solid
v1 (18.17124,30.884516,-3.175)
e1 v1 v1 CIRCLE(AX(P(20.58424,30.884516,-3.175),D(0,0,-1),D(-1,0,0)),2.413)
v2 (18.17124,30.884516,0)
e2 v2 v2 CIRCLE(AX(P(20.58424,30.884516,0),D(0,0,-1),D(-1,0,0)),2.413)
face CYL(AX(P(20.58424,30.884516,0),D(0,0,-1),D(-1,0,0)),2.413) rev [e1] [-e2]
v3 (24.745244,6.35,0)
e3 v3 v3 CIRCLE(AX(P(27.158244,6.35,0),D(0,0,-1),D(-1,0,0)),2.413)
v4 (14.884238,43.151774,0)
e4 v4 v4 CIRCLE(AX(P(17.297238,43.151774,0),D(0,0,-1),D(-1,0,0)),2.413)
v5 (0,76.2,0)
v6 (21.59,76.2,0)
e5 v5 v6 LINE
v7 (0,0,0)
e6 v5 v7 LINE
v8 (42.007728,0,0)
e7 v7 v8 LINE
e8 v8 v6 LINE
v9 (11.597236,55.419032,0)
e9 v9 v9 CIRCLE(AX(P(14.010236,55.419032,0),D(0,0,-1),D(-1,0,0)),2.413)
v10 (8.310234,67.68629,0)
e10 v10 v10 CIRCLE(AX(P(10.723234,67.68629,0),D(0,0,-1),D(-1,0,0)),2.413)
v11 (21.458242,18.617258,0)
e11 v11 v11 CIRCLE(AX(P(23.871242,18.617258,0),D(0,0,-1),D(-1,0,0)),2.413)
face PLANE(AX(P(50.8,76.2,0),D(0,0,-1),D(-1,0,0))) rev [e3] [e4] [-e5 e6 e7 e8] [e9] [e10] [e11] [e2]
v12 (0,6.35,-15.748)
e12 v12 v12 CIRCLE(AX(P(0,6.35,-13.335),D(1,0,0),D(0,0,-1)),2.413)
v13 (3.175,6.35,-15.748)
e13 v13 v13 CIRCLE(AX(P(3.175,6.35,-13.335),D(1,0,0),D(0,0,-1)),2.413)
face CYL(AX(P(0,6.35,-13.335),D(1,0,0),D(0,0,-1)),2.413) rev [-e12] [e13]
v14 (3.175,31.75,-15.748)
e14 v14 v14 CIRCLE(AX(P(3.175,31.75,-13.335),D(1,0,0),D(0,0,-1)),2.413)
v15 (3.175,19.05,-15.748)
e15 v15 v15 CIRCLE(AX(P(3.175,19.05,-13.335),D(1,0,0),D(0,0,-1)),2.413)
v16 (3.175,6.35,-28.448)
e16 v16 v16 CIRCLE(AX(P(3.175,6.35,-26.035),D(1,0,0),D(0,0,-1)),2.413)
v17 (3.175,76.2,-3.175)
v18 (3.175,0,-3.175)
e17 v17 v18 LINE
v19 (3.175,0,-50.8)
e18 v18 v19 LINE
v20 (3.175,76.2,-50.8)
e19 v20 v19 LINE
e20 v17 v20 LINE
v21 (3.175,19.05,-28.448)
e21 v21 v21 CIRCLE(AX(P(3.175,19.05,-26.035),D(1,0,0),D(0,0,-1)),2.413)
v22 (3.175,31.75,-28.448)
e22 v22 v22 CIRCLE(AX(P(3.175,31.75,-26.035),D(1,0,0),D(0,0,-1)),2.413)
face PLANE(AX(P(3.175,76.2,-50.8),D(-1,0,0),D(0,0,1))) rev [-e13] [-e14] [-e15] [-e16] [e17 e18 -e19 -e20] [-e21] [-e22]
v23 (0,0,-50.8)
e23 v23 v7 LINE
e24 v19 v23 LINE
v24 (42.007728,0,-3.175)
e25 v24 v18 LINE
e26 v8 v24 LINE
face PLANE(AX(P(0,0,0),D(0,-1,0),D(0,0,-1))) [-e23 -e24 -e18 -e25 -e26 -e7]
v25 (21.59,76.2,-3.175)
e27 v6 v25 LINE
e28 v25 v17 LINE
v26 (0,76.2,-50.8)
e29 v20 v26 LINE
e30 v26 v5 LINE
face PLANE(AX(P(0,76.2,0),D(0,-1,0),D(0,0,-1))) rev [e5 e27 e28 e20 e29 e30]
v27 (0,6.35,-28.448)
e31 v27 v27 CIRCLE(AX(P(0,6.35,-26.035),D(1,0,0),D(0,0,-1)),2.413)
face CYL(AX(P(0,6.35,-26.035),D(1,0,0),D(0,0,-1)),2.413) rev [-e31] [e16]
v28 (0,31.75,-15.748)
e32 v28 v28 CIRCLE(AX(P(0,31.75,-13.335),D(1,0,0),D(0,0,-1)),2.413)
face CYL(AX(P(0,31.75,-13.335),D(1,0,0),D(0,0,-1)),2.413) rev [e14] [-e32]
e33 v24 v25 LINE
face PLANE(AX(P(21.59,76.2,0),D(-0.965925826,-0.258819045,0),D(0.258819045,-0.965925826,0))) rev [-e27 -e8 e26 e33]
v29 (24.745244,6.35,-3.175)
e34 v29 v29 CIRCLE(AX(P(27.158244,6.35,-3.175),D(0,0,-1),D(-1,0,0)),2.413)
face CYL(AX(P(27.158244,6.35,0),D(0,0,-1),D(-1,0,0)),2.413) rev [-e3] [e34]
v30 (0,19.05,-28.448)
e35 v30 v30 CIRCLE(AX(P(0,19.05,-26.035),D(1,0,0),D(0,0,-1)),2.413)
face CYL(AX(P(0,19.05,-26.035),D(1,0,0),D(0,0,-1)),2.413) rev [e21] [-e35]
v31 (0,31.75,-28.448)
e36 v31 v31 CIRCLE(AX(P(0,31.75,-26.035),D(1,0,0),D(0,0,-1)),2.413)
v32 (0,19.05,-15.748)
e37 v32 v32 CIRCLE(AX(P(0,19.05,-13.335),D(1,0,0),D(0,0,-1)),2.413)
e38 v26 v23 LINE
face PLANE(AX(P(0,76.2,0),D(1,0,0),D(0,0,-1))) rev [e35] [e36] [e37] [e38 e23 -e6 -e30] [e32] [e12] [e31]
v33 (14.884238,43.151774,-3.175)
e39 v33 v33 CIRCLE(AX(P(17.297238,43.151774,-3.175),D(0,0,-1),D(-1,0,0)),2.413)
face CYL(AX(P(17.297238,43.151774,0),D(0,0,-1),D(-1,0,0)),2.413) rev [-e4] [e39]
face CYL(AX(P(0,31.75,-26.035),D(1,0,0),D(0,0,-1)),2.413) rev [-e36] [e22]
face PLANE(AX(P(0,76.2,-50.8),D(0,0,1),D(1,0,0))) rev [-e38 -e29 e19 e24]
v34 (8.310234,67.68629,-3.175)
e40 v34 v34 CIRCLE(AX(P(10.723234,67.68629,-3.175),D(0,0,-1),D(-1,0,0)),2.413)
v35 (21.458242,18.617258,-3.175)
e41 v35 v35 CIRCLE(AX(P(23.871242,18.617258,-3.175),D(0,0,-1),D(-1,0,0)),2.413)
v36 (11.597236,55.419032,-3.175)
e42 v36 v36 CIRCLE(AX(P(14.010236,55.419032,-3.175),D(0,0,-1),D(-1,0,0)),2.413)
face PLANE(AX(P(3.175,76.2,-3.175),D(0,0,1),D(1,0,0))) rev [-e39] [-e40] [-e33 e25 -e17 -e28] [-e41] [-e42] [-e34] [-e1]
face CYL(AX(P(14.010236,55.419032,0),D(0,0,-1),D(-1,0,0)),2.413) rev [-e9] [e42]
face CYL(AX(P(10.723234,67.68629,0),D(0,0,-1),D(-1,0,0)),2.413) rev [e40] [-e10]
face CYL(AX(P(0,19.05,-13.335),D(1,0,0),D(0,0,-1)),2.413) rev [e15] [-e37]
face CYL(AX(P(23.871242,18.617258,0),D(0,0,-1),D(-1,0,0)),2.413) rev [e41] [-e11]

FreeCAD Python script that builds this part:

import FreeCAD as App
import Part
import Sketcher
Q = App.Units.Quantity


def add_polygon(sketch, points):
    """Adds a closed chain of lines whose ends are joined by coincident constraints."""
    first, n = sketch.GeometryCount, len(points)
    for a, b in zip(points, points[1:] + points[:1]):
        sketch.addGeometry(Part.LineSegment(App.Vector(*a, 0), App.Vector(*b, 0)), False)
    for i in range(n):
        sketch.addConstraint(Sketcher.Constraint("Coincident", first + i, 2, first + (i + 1) % n, 1))

doc = App.newDocument("Part")
body = doc.addObject("PartDesign::Body", "Body")

sketch1 = body.newObject("Sketcher::SketchObject", "Sketch")
sketch1.AttachmentSupport = (doc.getObject("XZ_Plane"), [""])
sketch1.MapMode = "FlatFace"
add_polygon(sketch1, [(0, -50.8), (0, 0), (50.8, 0), (50.8, -3.175), (3.175, -3.175), (3.175, -50.8)])
sketch1.addConstraint(Sketcher.Constraint("Vertical", 0))
sketch1.addConstraint(Sketcher.Constraint("Horizontal", 1))
sketch1.addConstraint(Sketcher.Constraint("Vertical", 2))
sketch1.addConstraint(Sketcher.Constraint("Horizontal", 3))
sketch1.addConstraint(Sketcher.Constraint("Vertical", 4))
sketch1.addConstraint(Sketcher.Constraint("Horizontal", 5))
sketch1.addConstraint(Sketcher.Constraint("Coincident", 0, 2, -1, 1))
sketch1.addConstraint(Sketcher.Constraint("Equal", 1, 0))
sketch1.addConstraint(Sketcher.Constraint("Equal", 5, 2))
sketch1.addConstraint(Sketcher.Constraint("DistanceX", 1, 1, 1, 2, Q("2 in")))
sketch1.addConstraint(Sketcher.Constraint("DistanceX", 3, 2, 3, 1, Q("1.875 in")))
pad1 = body.newObject("PartDesign::Pad", "Pad")
pad1.Profile = sketch1
pad1.Length = Q("3 in")
pad1.Reversed = True

sketch2 = body.newObject("Sketcher::SketchObject", "Sketch001")
sketch2.AttachmentSupport = (doc.getObject("XY_Plane"), [""])
sketch2.MapMode = "FlatFace"
sketch2.AttachmentOffset = App.Placement(App.Vector(0, 0, -0.125 * 25.4), App.Rotation())
sketch2.addGeometry(Part.Circle(App.Vector(27.158244, 6.35, 0), App.Vector(0, 0, 1), 2.413), False)
sketch2.addGeometry(Part.Circle(App.Vector(23.871242, 18.617258, 0), App.Vector(0, 0, 1), 2.413), False)
sketch2.addGeometry(Part.Circle(App.Vector(20.58424, 30.884516, 0), App.Vector(0, 0, 1), 2.413), False)
sketch2.addGeometry(Part.Circle(App.Vector(17.297238, 43.151774, 0), App.Vector(0, 0, 1), 2.413), False)
sketch2.addGeometry(Part.Circle(App.Vector(14.010236, 55.419032, 0), App.Vector(0, 0, 1), 2.413), False)
sketch2.addGeometry(Part.Circle(App.Vector(10.723234, 67.68629, 0), App.Vector(0, 0, 1), 2.413), False)
add_polygon(sketch2, [(50.8, -32.813204), (21.59, 76.2), (50.8, 76.2)])
sketch2.addConstraint(Sketcher.Constraint("Horizontal", 7))
sketch2.addConstraint(Sketcher.Constraint("Vertical", 8))
sketch2.addConstraint(Sketcher.Constraint("Equal", 0, 1))
sketch2.addConstraint(Sketcher.Constraint("Equal", 1, 2))
sketch2.addConstraint(Sketcher.Constraint("Equal", 2, 3))
sketch2.addConstraint(Sketcher.Constraint("Equal", 3, 4))
sketch2.addConstraint(Sketcher.Constraint("Equal", 4, 5))
sketch2.addConstraint(Sketcher.Constraint("Diameter", 0, Q("0.19 in")))
sketch2.addConstraint(Sketcher.Constraint("DistanceY", -1, 1, 6, 2, Q("3 in")))
sketch2.addConstraint(Sketcher.Constraint("DistanceX", -1, 1, 7, 2, Q("2 in")))
sketch2.addConstraint(Sketcher.Constraint("Angle", 6, Q("105 deg")))
sketch2.addConstraint(Sketcher.Constraint("DistanceX", 7, 1, 7, 2, Q("1.15 in")))
sketch2.addConstraint(Sketcher.Constraint("DistanceY", -1, 1, 0, 3, Q("0.25 in")))
sketch2.addConstraint(Sketcher.Constraint("DistanceX", 1, 3, 0, 3, Q("3.287002 mm")))
sketch2.addConstraint(Sketcher.Constraint("DistanceX", 2, 3, 1, 3, Q("3.287002 mm")))
sketch2.addConstraint(Sketcher.Constraint("DistanceX", 3, 3, 2, 3, Q("3.287002 mm")))
sketch2.addConstraint(Sketcher.Constraint("DistanceX", 4, 3, 3, 3, Q("3.287002 mm")))
sketch2.addConstraint(Sketcher.Constraint("DistanceX", 5, 3, 4, 3, Q("3.287002 mm")))
sketch2.addConstraint(Sketcher.Constraint("DistanceX", -1, 1, 1, 3, Q("23.871242 mm")))
sketch2.addConstraint(Sketcher.Constraint("DistanceY", -1, 1, 4, 3, Q("55.419032 mm")))
sketch2.addConstraint(Sketcher.Constraint("DistanceY", -1, 1, 5, 3, Q("67.68629 mm")))
sketch2.addConstraint(Sketcher.Constraint("DistanceY", 1, 3, 5, 3, Q("49.069032 mm")))
sketch2.addConstraint(Sketcher.Constraint("DistanceY", 8, 2, 2, 3, Q("63.69772 mm")))
sketch2.addConstraint(Sketcher.Constraint("DistanceY", 8, 2, 3, 3, Q("75.964978 mm")))
pocket1 = body.newObject("PartDesign::Pocket", "Pocket")
pocket1.Profile = sketch2
pocket1.Type = "ThroughAll"
pocket1.Reversed = True

sketch3 = body.newObject("Sketcher::SketchObject", "Sketch002")
sketch3.AttachmentSupport = (doc.getObject("YZ_Plane"), [""])
sketch3.MapMode = "FlatFace"
sketch3.AttachmentOffset = App.Placement(App.Vector(0, 0, 0.125 * 25.4), App.Rotation())
sketch3.addGeometry(Part.Circle(App.Vector(6.35, -13.335, 0), App.Vector(0, 0, 1), 2.413), False)
sketch3.addGeometry(Part.Circle(App.Vector(6.35, -26.035, 0), App.Vector(0, 0, 1), 2.413), False)
sketch3.addGeometry(Part.Circle(App.Vector(19.05, -13.335, 0), App.Vector(0, 0, 1), 2.413), False)
sketch3.addGeometry(Part.Circle(App.Vector(19.05, -26.035, 0), App.Vector(0, 0, 1), 2.413), False)
sketch3.addGeometry(Part.Circle(App.Vector(31.75, -13.335, 0), App.Vector(0, 0, 1), 2.413), False)
sketch3.addGeometry(Part.Circle(App.Vector(31.75, -26.035, 0), App.Vector(0, 0, 1), 2.413), False)
sketch3.addConstraint(Sketcher.Constraint("Equal", 0, 1))
sketch3.addConstraint(Sketcher.Constraint("Equal", 1, 2))
sketch3.addConstraint(Sketcher.Constraint("Equal", 2, 3))
sketch3.addConstraint(Sketcher.Constraint("Equal", 3, 4))
sketch3.addConstraint(Sketcher.Constraint("Equal", 4, 5))
sketch3.addConstraint(Sketcher.Constraint("Horizontal", 0, 3, 2, 3))
sketch3.addConstraint(Sketcher.Constraint("Horizontal", 1, 3, 3, 3))
sketch3.addConstraint(Sketcher.Constraint("Horizontal", 2, 3, 4, 3))
sketch3.addConstraint(Sketcher.Constraint("Horizontal", 3, 3, 5, 3))
sketch3.addConstraint(Sketcher.Constraint("Vertical", 0, 3, 1, 3))
sketch3.addConstraint(Sketcher.Constraint("Vertical", 2, 3, 3, 3))
sketch3.addConstraint(Sketcher.Constraint("Vertical", 4, 3, 5, 3))
sketch3.addConstraint(Sketcher.Constraint("Diameter", 0, Q("0.19 in")))
sketch3.addConstraint(Sketcher.Constraint("DistanceX", 0, 3, 4, 3, Q("1 in")))
sketch3.addConstraint(Sketcher.Constraint("DistanceY", 1, 3, 0, 3, Q("0.5 in")))
sketch3.addConstraint(Sketcher.Constraint("DistanceX", 0, 3, 2, 3, Q("0.5 in")))
sketch3.addConstraint(Sketcher.Constraint("DistanceX", -1, 1, 0, 3, Q("0.25 in")))
sketch3.addConstraint(Sketcher.Constraint("DistanceY", 0, 3, -1, 1, Q("0.525 in")))
pocket2 = body.newObject("PartDesign::Pocket", "Pocket001")
pocket2.Profile = sketch3
pocket2.Type = "ThroughAll"

doc.recompute()
